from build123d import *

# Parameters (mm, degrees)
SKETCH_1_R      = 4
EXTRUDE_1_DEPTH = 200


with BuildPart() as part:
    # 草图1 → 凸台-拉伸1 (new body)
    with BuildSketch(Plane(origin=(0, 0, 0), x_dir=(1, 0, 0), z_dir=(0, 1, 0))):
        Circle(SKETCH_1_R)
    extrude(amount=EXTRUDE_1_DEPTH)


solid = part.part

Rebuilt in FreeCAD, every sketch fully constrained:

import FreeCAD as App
import Part
import Sketcher

V = App.Vector

doc = App.newDocument("Part")
params = doc.addObject("Spreadsheet::Sheet", "Params")
for row, (alias, value) in enumerate([
    ("sketch1_diameter", "8 mm"),
    ("pad1_length", "200 mm"),
], start=1):
    params.set(f"A{row}", alias)
    params.set(f"B{row}", "=" + value)
    params.setAlias(f"B{row}", alias)

body = doc.addObject("PartDesign::Body", "Body")

sketch1 = doc.addObject("Sketcher::SketchObject", "Sketch")
body.addObject(sketch1)
sketch1.AttachmentSupport = (doc.XZ_Plane, [""])
sketch1.MapMode = "FlatFace"
sketch1.addGeometry(Part.Circle(V(0, 0, 0), V(0, 0, 1), 4), False)
sketch1.addConstraint([
    Sketcher.Constraint("Coincident", 0, 3, -1, 1),
    Sketcher.Constraint("Diameter", 0, 8.0),
])
sketch1.setExpression("Constraints[1]", "Params.sketch1_diameter")
pad1 = doc.addObject("PartDesign::Pad", "Pad")
body.addObject(pad1)
pad1.Profile = sketch1
pad1.setExpression("Length", "Params.pad1_length")
pad1.Reversed = True

doc.recompute()
